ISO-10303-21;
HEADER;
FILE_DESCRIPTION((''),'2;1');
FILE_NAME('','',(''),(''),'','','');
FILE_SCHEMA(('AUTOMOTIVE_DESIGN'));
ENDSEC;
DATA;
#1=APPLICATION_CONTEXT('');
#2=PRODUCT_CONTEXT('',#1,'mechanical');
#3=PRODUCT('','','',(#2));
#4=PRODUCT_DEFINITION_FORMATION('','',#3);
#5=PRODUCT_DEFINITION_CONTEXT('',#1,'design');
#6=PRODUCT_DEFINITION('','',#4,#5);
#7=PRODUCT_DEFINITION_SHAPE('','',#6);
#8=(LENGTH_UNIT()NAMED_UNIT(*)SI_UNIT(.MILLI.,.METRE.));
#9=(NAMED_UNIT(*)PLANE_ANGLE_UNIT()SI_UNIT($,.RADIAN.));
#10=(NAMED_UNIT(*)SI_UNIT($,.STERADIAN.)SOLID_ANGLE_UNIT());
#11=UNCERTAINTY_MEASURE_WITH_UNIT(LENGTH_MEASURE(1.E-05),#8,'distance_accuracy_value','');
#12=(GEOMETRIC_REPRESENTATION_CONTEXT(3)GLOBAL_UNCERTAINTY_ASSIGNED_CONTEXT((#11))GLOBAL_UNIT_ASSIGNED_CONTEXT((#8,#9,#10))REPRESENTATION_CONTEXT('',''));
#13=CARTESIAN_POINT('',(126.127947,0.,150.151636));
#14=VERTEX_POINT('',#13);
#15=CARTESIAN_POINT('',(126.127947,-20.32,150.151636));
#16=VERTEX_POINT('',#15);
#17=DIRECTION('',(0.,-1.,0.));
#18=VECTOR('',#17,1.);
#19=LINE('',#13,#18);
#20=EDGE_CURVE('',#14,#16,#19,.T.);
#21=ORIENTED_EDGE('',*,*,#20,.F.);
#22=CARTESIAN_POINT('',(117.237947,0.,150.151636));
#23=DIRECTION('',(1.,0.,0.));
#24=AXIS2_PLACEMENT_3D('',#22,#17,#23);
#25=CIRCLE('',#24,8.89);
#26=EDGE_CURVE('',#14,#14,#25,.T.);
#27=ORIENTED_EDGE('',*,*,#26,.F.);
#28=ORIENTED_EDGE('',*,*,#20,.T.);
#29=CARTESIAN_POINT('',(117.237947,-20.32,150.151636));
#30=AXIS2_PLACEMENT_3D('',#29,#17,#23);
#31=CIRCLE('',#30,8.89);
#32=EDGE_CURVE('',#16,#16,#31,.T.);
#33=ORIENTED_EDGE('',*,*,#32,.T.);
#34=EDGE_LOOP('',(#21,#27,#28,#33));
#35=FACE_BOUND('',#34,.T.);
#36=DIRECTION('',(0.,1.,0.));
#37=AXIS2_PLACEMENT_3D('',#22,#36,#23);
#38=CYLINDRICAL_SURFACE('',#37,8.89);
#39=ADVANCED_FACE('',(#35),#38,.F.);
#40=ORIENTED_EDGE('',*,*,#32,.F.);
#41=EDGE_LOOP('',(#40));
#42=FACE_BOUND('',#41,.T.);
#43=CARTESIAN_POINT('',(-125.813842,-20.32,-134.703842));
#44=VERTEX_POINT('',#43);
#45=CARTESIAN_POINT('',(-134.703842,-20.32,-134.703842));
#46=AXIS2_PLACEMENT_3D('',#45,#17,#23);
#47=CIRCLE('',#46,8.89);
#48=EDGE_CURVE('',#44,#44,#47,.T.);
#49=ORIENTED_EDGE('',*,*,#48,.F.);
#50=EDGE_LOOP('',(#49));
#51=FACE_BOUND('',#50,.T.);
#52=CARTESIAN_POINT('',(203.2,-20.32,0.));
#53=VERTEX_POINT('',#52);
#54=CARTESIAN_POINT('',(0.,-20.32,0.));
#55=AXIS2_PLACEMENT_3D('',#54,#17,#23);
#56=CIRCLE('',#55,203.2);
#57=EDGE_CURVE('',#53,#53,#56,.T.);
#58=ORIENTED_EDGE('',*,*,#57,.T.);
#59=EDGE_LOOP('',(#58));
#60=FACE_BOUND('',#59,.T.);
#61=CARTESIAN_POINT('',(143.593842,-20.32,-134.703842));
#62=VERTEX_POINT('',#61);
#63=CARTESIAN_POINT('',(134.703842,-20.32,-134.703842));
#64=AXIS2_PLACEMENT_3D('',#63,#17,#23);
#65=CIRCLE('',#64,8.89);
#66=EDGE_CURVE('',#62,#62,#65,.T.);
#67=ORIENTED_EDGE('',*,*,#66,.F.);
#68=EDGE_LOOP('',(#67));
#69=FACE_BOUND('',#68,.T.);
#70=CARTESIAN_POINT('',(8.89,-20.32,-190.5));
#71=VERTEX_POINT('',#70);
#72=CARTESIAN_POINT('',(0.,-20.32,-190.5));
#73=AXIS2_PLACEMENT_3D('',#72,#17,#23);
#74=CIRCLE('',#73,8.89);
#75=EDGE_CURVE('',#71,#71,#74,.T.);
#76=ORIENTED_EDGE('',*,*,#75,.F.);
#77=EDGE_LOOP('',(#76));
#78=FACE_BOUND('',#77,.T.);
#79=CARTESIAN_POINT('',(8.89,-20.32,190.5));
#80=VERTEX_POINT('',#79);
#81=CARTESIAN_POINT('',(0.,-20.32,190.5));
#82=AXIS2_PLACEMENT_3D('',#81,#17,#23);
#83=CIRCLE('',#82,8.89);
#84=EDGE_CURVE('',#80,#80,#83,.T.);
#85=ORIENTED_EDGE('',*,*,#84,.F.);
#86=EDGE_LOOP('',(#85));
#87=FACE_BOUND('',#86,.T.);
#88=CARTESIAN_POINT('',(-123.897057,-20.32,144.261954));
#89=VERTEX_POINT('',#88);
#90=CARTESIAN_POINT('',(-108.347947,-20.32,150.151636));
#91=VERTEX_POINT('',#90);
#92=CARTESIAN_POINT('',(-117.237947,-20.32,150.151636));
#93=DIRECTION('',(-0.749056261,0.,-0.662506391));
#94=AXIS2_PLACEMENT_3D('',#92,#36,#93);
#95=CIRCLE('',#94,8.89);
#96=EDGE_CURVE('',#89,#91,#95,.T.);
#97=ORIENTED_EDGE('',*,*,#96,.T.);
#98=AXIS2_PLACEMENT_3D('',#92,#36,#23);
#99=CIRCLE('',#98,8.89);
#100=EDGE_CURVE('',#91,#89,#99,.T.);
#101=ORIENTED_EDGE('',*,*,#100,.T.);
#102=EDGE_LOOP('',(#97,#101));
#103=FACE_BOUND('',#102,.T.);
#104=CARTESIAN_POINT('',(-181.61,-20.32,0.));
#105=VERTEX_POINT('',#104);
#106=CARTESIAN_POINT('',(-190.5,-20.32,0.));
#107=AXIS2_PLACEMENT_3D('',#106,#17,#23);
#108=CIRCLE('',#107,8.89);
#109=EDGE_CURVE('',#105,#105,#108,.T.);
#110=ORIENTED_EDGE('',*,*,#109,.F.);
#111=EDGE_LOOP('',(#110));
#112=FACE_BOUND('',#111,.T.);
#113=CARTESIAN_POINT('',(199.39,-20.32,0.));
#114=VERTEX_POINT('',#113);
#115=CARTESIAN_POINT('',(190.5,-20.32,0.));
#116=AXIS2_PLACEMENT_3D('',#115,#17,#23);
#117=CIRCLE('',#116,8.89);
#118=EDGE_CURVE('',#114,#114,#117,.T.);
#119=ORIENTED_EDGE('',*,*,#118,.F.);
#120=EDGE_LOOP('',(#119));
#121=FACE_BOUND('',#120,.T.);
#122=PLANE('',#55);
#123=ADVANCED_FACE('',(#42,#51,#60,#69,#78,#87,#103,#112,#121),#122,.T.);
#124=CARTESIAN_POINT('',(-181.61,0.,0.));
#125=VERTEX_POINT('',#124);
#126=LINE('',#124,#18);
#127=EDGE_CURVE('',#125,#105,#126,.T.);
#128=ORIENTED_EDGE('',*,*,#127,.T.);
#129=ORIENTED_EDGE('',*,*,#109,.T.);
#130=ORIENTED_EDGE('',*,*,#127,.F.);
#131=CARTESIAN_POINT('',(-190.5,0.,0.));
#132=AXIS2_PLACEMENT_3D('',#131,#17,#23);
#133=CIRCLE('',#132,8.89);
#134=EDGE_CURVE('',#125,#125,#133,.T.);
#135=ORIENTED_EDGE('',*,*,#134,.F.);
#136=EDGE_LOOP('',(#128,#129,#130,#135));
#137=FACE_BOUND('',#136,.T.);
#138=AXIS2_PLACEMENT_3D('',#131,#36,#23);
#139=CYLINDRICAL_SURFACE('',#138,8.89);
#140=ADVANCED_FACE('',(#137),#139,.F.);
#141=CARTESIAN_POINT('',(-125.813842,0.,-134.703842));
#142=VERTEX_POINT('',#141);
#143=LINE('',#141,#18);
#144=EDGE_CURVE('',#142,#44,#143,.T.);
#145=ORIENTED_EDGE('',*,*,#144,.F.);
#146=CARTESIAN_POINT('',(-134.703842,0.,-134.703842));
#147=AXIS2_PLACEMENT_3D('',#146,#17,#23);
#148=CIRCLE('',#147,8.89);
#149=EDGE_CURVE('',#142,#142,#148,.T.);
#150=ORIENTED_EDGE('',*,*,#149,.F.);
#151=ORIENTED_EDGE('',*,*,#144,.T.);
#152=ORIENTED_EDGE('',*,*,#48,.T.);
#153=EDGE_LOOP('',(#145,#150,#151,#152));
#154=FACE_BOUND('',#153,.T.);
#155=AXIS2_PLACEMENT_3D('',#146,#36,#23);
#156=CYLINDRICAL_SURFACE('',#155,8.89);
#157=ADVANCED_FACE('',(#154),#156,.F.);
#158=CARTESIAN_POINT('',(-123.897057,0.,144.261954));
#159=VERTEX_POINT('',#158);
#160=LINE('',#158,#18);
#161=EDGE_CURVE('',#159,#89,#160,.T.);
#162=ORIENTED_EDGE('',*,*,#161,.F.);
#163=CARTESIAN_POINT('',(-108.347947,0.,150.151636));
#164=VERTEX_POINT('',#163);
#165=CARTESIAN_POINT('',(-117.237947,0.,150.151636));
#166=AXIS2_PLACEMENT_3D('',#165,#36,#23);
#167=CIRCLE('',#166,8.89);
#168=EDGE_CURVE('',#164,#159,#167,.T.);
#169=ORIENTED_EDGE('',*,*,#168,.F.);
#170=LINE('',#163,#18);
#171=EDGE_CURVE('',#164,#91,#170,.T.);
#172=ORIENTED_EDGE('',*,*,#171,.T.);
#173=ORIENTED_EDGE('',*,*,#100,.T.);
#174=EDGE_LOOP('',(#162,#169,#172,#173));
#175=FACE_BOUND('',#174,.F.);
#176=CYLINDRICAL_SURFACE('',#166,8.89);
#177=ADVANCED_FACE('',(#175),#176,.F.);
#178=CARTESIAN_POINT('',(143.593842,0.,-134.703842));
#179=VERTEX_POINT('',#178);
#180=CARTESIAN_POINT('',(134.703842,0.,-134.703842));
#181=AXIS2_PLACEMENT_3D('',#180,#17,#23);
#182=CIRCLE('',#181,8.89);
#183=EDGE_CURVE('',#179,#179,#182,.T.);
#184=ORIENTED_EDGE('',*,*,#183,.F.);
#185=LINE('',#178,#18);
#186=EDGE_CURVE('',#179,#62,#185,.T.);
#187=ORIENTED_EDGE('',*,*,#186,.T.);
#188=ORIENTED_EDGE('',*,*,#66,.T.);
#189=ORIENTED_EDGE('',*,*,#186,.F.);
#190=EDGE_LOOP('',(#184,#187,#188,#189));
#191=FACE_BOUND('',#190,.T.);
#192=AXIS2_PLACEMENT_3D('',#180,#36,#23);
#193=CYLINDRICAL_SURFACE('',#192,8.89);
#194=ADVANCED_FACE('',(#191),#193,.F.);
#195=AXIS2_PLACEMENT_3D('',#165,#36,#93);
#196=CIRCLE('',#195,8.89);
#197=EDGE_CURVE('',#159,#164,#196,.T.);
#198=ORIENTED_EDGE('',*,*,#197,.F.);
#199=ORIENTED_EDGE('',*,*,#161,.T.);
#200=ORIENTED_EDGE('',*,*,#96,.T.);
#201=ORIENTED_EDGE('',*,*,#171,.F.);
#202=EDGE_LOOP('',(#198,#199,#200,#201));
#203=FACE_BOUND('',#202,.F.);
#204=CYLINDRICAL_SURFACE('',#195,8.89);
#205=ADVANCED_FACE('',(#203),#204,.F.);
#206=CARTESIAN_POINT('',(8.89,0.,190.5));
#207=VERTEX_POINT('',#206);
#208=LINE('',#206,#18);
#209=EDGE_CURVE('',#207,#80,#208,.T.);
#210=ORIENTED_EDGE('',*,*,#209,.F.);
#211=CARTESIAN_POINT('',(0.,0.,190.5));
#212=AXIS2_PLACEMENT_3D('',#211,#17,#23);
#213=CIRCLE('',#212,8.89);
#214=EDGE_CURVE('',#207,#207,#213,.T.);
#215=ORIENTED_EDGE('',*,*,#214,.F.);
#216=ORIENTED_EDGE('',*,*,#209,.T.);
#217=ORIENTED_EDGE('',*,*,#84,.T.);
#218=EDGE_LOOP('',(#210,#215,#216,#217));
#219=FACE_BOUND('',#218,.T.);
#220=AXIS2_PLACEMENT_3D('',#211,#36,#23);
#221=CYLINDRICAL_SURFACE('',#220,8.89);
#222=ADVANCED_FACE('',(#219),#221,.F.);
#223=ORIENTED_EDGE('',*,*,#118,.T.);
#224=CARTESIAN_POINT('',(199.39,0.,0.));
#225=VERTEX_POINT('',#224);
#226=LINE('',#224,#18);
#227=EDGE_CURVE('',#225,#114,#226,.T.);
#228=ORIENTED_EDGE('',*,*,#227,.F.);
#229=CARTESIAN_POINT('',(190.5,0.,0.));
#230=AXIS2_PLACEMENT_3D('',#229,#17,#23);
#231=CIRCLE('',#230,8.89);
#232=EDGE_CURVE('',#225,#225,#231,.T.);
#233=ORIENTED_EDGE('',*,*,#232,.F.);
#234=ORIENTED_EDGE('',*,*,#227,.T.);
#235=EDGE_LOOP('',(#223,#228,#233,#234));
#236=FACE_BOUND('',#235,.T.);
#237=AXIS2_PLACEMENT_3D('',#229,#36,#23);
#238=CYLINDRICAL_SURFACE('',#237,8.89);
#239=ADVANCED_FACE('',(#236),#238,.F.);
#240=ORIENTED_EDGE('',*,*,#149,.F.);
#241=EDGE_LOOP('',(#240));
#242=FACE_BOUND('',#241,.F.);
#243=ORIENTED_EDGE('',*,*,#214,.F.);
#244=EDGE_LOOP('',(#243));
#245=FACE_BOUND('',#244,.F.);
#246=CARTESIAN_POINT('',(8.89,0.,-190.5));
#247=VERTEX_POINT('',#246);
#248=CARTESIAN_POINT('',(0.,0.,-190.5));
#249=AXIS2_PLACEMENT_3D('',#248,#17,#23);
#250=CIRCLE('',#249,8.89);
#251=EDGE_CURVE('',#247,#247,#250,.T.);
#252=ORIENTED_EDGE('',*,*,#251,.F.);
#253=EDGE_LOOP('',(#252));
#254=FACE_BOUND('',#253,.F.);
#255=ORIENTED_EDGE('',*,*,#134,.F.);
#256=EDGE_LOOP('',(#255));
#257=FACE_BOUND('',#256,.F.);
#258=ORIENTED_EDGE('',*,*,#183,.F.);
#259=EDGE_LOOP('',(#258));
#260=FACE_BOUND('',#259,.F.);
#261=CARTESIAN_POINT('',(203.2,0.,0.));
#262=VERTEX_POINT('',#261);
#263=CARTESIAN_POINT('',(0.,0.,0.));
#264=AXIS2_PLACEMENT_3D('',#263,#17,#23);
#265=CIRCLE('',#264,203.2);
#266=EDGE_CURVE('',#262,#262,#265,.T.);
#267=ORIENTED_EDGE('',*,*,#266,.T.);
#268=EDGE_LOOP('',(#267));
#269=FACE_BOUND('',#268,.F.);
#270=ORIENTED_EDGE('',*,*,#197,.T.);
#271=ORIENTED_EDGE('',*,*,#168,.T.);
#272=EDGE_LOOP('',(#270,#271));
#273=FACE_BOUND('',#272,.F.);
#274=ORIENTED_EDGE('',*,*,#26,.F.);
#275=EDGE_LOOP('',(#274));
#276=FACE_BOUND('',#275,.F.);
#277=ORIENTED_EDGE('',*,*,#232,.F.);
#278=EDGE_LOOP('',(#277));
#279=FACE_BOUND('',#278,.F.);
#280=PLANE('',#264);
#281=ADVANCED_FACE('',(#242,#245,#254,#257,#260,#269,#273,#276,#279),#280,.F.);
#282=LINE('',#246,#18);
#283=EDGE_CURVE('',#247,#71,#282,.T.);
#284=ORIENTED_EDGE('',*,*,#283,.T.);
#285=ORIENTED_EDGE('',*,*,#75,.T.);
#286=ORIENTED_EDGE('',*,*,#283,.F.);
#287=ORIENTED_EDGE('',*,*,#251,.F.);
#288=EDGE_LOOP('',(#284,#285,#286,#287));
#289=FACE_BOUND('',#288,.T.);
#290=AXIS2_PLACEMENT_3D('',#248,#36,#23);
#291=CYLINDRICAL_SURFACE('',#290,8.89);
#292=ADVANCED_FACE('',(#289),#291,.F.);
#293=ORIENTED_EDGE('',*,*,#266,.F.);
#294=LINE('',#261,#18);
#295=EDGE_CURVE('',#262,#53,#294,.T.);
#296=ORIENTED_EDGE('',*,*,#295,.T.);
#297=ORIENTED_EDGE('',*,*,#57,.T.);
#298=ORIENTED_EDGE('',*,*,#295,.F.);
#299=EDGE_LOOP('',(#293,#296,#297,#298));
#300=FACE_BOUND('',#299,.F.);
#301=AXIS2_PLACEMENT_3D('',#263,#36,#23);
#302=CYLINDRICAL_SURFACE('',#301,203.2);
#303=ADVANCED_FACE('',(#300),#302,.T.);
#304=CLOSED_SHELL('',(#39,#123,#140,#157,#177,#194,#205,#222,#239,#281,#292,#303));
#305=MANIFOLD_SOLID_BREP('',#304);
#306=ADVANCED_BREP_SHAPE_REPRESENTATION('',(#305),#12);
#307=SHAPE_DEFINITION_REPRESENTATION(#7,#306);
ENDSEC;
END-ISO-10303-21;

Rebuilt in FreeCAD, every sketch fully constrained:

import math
import FreeCAD as App
import Part
import Sketcher
from FreeCAD import Vector
Q = App.Units.Quantity

doc = App.newDocument("Part")
body = doc.addObject("PartDesign::Body", "Body")

# Sketch on XZ plane
sketch1 = body.newObject("Sketcher::SketchObject", "Sketch")
sketch1.AttachmentSupport = (doc.getObject("XZ_Plane"), [""])
sketch1.MapMode = "FlatFace"
sketch1.addGeometry(Part.Circle(Vector(0, 0, 0), Vector(0, 0, 1), 203.2), False)
sketch1.addGeometry(Part.Circle(Vector(-134.703842, -134.703842, 0), Vector(0, 0, 1), 8.89), False)
sketch1.addGeometry(Part.Circle(Vector(0, -190.5, 0), Vector(0, 0, 1), 8.89), False)
sketch1.addGeometry(Part.Circle(Vector(134.703842, -134.703842, 0), Vector(0, 0, 1), 8.89), False)
sketch1.addGeometry(Part.Circle(Vector(-190.5, 0, 0), Vector(0, 0, 1), 8.89), False)
sketch1.addGeometry(Part.ArcOfCircle(Part.Circle(Vector(-117.237947, 150.151636, 0), Vector(0, 0, 1), 8.89), math.radians(-138.508694), math.radians(0)), False)
sketch1.addGeometry(Part.ArcOfCircle(Part.Circle(Vector(-117.237947, 150.151636, 0), Vector(0, 0, 1), 8.89), math.radians(0), math.radians(221.491306)), False)
sketch1.addGeometry(Part.Circle(Vector(0, 190.5, 0), Vector(0, 0, 1), 8.89), False)
sketch1.addGeometry(Part.Circle(Vector(190.5, 0, 0), Vector(0, 0, 1), 8.89), False)
sketch1.addGeometry(Part.Circle(Vector(117.237947, 150.151636, 0), Vector(0, 0, 1), 8.89), False)
sketch1.addConstraint(Sketcher.Constraint("Tangent", 5, 1, 6, 2))
sketch1.addConstraint(Sketcher.Constraint("Coincident", 6, 1, 5, 2))
sketch1.addConstraint(Sketcher.Constraint("Coincident", 0, 3, -1, 1))
sketch1.addConstraint(Sketcher.Constraint("Equal", 1, 2))
sketch1.addConstraint(Sketcher.Constraint("Equal", 2, 3))
sketch1.addConstraint(Sketcher.Constraint("Equal", 3, 4))
sketch1.addConstraint(Sketcher.Constraint("Equal", 4, 5))
sketch1.addConstraint(Sketcher.Constraint("Equal", 6, 7))
sketch1.addConstraint(Sketcher.Constraint("Equal", 7, 8))
sketch1.addConstraint(Sketcher.Constraint("Equal", 8, 9))
sketch1.addConstraint(Sketcher.Constraint("Symmetric", 2, 3, 7, 3, -1, 1))
sketch1.addConstraint(Sketcher.Constraint("Symmetric", 4, 3, 8, 3, -1, 1))
sketch1.addConstraint(Sketcher.Constraint("Symmetric", 1, 3, 3, 3, -2))
sketch1.addConstraint(Sketcher.Constraint("Symmetric", 5, 3, 9, 3, -2))
sketch1.addConstraint(Sketcher.Constraint("PointOnObject", 2, 3, -2))
sketch1.addConstraint(Sketcher.Constraint("PointOnObject", 4, 3, -1))
sketch1.addConstraint(Sketcher.Constraint("Horizontal", 9, 3, 6, 1))
sketch1.addConstraint(Sketcher.Constraint("Diameter", 0, Q("16 in")))
sketch1.addConstraint(Sketcher.Constraint("Diameter", 1, Q("0.7 in")))
sketch1.addConstraint(Sketcher.Constraint("DistanceY", 2, 3, -1, 1, Q("7.5 in")))
sketch1.addConstraint(Sketcher.Constraint("DistanceX", 4, 3, -1, 1, Q("7.5 in")))
sketch1.addConstraint(Sketcher.Constraint("DistanceX", 1, 3, -1, 1, Q("134.703842 mm")))
sketch1.addConstraint(Sketcher.Constraint("DistanceY", 1, 3, -1, 1, Q("134.703842 mm")))
sketch1.addConstraint(Sketcher.Constraint("DistanceX", 5, 3, 3, 3, Q("251.941789 mm")))
sketch1.addConstraint(Sketcher.Constraint("DistanceX", 5, 1, 5, 3, Q("6.65911 mm")))
sketch1.addConstraint(Sketcher.Constraint("DistanceY", -1, 1, 5, 3, Q("150.151636 mm")))
pad1 = body.newObject("PartDesign::Pad", "Pad")
pad1.Profile = sketch1
pad1.Length = Q("0.8 in")

doc.recompute()
